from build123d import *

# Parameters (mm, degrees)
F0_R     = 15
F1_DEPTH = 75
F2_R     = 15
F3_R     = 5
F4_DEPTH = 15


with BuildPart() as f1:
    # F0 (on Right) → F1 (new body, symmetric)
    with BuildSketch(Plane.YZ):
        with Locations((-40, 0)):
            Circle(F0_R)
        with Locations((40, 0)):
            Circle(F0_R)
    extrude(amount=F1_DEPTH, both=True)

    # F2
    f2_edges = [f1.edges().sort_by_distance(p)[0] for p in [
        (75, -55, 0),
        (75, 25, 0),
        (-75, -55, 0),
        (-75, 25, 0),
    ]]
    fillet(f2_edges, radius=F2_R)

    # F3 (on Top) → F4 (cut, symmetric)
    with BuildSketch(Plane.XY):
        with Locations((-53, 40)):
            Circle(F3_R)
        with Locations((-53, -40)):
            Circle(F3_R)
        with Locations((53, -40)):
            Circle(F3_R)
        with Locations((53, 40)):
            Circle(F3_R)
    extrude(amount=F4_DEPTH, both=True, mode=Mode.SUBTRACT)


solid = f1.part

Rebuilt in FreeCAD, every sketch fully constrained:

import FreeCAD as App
import Part
import Sketcher

V = App.Vector


def edges_at(feature, points):
    """Names of the edges that pass closest to the given points."""
    edges = feature.Shape.Edges
    near = lambda p: min(range(len(edges)), key=lambda i: edges[i].distToShape(Part.Vertex(*p))[0])
    return sorted({f"Edge{near(p) + 1}" for p in points})

doc = App.newDocument("Part")
params = doc.addObject("Spreadsheet::Sheet", "Params")
for row, (alias, value) in enumerate([
    ("sketch1_diameter", "30 mm"),
    ("pad1_length", "150 mm"),
    ("fillet_radius", "15 mm"),
    ("sketch2_diameter", "10 mm"),
    ("pocket1_length", "30 mm"),
], start=1):
    params.set(f"A{row}", alias)
    params.set(f"B{row}", "=" + value)
    params.setAlias(f"B{row}", alias)

body = doc.addObject("PartDesign::Body", "Body")
body.AllowCompound = True

# Sketch on YZ plane
sketch1 = body.newObject("Sketcher::SketchObject", "Sketch")
sketch1.AttachmentSupport = (doc.getObject("YZ_Plane"), [""])
sketch1.MapMode = "FlatFace"
sketch1.addGeometry(Part.Circle(V(-40, 0, 0), V(0, 0, 1), 15), False)
sketch1.addGeometry(Part.Circle(V(40, 0, 0), V(0, 0, 1), 15), False)
sketch1.addConstraint(Sketcher.Constraint("Equal", 0, 1))
sketch1.addConstraint(Sketcher.Constraint("Symmetric", 0, 3, 1, 3, -1, 1))
sketch1.addConstraint(Sketcher.Constraint("PointOnObject", 0, 3, -1))
sketch1.addConstraint(Sketcher.Constraint("Diameter", 0, 30.0))
sketch1.addConstraint(Sketcher.Constraint("DistanceX", 0, 3, -1, 1, 40.0))
sketch1.setExpression("Constraints[3]", "Params.sketch1_diameter")
pad1 = body.newObject("PartDesign::Pad", "Pad")
pad1.Profile = sketch1
pad1.setExpression("Length", "Params.pad1_length")
pad1.Midplane = True
doc.recompute()

fillet = body.newObject("PartDesign::Fillet", "Fillet")
fillet.Base = (pad1, edges_at(pad1, [
    (75, -55, 0),
    (75, 25, 0),
    (-75, -55, 0),
    (-75, 25, 0),
]))
fillet.setExpression("Radius", "Params.fillet_radius")

# Sketch on XY plane
sketch2 = body.newObject("Sketcher::SketchObject", "Sketch001")
sketch2.AttachmentSupport = (doc.getObject("XY_Plane"), [""])
sketch2.MapMode = "FlatFace"
sketch2.addGeometry(Part.Circle(V(-53, 40, 0), V(0, 0, 1), 5), False)
sketch2.addGeometry(Part.Circle(V(-53, -40, 0), V(0, 0, 1), 5), False)
sketch2.addGeometry(Part.Circle(V(53, -40, 0), V(0, 0, 1), 5), False)
sketch2.addGeometry(Part.Circle(V(53, 40, 0), V(0, 0, 1), 5), False)
sketch2.addConstraint(Sketcher.Constraint("Equal", 0, 1))
sketch2.addConstraint(Sketcher.Constraint("Equal", 1, 2))
sketch2.addConstraint(Sketcher.Constraint("Equal", 2, 3))
sketch2.addConstraint(Sketcher.Constraint("Symmetric", 0, 3, 2, 3, -1, 1))
sketch2.addConstraint(Sketcher.Constraint("Symmetric", 1, 3, 3, 3, -1, 1))
sketch2.addConstraint(Sketcher.Constraint("Symmetric", 1, 3, 2, 3, -2))
sketch2.addConstraint(Sketcher.Constraint("Diameter", 0, 10.0))
sketch2.addConstraint(Sketcher.Constraint("DistanceX", 0, 3, -1, 1, 53.0))
sketch2.addConstraint(Sketcher.Constraint("DistanceY", -1, 1, 0, 3, 40.0))
sketch2.setExpression("Constraints[6]", "Params.sketch2_diameter")
pocket1 = body.newObject("PartDesign::Pocket", "Pocket")
pocket1.Profile = sketch2
pocket1.setExpression("Length", "Params.pocket1_length")
pocket1.Midplane = True

doc.recompute()
